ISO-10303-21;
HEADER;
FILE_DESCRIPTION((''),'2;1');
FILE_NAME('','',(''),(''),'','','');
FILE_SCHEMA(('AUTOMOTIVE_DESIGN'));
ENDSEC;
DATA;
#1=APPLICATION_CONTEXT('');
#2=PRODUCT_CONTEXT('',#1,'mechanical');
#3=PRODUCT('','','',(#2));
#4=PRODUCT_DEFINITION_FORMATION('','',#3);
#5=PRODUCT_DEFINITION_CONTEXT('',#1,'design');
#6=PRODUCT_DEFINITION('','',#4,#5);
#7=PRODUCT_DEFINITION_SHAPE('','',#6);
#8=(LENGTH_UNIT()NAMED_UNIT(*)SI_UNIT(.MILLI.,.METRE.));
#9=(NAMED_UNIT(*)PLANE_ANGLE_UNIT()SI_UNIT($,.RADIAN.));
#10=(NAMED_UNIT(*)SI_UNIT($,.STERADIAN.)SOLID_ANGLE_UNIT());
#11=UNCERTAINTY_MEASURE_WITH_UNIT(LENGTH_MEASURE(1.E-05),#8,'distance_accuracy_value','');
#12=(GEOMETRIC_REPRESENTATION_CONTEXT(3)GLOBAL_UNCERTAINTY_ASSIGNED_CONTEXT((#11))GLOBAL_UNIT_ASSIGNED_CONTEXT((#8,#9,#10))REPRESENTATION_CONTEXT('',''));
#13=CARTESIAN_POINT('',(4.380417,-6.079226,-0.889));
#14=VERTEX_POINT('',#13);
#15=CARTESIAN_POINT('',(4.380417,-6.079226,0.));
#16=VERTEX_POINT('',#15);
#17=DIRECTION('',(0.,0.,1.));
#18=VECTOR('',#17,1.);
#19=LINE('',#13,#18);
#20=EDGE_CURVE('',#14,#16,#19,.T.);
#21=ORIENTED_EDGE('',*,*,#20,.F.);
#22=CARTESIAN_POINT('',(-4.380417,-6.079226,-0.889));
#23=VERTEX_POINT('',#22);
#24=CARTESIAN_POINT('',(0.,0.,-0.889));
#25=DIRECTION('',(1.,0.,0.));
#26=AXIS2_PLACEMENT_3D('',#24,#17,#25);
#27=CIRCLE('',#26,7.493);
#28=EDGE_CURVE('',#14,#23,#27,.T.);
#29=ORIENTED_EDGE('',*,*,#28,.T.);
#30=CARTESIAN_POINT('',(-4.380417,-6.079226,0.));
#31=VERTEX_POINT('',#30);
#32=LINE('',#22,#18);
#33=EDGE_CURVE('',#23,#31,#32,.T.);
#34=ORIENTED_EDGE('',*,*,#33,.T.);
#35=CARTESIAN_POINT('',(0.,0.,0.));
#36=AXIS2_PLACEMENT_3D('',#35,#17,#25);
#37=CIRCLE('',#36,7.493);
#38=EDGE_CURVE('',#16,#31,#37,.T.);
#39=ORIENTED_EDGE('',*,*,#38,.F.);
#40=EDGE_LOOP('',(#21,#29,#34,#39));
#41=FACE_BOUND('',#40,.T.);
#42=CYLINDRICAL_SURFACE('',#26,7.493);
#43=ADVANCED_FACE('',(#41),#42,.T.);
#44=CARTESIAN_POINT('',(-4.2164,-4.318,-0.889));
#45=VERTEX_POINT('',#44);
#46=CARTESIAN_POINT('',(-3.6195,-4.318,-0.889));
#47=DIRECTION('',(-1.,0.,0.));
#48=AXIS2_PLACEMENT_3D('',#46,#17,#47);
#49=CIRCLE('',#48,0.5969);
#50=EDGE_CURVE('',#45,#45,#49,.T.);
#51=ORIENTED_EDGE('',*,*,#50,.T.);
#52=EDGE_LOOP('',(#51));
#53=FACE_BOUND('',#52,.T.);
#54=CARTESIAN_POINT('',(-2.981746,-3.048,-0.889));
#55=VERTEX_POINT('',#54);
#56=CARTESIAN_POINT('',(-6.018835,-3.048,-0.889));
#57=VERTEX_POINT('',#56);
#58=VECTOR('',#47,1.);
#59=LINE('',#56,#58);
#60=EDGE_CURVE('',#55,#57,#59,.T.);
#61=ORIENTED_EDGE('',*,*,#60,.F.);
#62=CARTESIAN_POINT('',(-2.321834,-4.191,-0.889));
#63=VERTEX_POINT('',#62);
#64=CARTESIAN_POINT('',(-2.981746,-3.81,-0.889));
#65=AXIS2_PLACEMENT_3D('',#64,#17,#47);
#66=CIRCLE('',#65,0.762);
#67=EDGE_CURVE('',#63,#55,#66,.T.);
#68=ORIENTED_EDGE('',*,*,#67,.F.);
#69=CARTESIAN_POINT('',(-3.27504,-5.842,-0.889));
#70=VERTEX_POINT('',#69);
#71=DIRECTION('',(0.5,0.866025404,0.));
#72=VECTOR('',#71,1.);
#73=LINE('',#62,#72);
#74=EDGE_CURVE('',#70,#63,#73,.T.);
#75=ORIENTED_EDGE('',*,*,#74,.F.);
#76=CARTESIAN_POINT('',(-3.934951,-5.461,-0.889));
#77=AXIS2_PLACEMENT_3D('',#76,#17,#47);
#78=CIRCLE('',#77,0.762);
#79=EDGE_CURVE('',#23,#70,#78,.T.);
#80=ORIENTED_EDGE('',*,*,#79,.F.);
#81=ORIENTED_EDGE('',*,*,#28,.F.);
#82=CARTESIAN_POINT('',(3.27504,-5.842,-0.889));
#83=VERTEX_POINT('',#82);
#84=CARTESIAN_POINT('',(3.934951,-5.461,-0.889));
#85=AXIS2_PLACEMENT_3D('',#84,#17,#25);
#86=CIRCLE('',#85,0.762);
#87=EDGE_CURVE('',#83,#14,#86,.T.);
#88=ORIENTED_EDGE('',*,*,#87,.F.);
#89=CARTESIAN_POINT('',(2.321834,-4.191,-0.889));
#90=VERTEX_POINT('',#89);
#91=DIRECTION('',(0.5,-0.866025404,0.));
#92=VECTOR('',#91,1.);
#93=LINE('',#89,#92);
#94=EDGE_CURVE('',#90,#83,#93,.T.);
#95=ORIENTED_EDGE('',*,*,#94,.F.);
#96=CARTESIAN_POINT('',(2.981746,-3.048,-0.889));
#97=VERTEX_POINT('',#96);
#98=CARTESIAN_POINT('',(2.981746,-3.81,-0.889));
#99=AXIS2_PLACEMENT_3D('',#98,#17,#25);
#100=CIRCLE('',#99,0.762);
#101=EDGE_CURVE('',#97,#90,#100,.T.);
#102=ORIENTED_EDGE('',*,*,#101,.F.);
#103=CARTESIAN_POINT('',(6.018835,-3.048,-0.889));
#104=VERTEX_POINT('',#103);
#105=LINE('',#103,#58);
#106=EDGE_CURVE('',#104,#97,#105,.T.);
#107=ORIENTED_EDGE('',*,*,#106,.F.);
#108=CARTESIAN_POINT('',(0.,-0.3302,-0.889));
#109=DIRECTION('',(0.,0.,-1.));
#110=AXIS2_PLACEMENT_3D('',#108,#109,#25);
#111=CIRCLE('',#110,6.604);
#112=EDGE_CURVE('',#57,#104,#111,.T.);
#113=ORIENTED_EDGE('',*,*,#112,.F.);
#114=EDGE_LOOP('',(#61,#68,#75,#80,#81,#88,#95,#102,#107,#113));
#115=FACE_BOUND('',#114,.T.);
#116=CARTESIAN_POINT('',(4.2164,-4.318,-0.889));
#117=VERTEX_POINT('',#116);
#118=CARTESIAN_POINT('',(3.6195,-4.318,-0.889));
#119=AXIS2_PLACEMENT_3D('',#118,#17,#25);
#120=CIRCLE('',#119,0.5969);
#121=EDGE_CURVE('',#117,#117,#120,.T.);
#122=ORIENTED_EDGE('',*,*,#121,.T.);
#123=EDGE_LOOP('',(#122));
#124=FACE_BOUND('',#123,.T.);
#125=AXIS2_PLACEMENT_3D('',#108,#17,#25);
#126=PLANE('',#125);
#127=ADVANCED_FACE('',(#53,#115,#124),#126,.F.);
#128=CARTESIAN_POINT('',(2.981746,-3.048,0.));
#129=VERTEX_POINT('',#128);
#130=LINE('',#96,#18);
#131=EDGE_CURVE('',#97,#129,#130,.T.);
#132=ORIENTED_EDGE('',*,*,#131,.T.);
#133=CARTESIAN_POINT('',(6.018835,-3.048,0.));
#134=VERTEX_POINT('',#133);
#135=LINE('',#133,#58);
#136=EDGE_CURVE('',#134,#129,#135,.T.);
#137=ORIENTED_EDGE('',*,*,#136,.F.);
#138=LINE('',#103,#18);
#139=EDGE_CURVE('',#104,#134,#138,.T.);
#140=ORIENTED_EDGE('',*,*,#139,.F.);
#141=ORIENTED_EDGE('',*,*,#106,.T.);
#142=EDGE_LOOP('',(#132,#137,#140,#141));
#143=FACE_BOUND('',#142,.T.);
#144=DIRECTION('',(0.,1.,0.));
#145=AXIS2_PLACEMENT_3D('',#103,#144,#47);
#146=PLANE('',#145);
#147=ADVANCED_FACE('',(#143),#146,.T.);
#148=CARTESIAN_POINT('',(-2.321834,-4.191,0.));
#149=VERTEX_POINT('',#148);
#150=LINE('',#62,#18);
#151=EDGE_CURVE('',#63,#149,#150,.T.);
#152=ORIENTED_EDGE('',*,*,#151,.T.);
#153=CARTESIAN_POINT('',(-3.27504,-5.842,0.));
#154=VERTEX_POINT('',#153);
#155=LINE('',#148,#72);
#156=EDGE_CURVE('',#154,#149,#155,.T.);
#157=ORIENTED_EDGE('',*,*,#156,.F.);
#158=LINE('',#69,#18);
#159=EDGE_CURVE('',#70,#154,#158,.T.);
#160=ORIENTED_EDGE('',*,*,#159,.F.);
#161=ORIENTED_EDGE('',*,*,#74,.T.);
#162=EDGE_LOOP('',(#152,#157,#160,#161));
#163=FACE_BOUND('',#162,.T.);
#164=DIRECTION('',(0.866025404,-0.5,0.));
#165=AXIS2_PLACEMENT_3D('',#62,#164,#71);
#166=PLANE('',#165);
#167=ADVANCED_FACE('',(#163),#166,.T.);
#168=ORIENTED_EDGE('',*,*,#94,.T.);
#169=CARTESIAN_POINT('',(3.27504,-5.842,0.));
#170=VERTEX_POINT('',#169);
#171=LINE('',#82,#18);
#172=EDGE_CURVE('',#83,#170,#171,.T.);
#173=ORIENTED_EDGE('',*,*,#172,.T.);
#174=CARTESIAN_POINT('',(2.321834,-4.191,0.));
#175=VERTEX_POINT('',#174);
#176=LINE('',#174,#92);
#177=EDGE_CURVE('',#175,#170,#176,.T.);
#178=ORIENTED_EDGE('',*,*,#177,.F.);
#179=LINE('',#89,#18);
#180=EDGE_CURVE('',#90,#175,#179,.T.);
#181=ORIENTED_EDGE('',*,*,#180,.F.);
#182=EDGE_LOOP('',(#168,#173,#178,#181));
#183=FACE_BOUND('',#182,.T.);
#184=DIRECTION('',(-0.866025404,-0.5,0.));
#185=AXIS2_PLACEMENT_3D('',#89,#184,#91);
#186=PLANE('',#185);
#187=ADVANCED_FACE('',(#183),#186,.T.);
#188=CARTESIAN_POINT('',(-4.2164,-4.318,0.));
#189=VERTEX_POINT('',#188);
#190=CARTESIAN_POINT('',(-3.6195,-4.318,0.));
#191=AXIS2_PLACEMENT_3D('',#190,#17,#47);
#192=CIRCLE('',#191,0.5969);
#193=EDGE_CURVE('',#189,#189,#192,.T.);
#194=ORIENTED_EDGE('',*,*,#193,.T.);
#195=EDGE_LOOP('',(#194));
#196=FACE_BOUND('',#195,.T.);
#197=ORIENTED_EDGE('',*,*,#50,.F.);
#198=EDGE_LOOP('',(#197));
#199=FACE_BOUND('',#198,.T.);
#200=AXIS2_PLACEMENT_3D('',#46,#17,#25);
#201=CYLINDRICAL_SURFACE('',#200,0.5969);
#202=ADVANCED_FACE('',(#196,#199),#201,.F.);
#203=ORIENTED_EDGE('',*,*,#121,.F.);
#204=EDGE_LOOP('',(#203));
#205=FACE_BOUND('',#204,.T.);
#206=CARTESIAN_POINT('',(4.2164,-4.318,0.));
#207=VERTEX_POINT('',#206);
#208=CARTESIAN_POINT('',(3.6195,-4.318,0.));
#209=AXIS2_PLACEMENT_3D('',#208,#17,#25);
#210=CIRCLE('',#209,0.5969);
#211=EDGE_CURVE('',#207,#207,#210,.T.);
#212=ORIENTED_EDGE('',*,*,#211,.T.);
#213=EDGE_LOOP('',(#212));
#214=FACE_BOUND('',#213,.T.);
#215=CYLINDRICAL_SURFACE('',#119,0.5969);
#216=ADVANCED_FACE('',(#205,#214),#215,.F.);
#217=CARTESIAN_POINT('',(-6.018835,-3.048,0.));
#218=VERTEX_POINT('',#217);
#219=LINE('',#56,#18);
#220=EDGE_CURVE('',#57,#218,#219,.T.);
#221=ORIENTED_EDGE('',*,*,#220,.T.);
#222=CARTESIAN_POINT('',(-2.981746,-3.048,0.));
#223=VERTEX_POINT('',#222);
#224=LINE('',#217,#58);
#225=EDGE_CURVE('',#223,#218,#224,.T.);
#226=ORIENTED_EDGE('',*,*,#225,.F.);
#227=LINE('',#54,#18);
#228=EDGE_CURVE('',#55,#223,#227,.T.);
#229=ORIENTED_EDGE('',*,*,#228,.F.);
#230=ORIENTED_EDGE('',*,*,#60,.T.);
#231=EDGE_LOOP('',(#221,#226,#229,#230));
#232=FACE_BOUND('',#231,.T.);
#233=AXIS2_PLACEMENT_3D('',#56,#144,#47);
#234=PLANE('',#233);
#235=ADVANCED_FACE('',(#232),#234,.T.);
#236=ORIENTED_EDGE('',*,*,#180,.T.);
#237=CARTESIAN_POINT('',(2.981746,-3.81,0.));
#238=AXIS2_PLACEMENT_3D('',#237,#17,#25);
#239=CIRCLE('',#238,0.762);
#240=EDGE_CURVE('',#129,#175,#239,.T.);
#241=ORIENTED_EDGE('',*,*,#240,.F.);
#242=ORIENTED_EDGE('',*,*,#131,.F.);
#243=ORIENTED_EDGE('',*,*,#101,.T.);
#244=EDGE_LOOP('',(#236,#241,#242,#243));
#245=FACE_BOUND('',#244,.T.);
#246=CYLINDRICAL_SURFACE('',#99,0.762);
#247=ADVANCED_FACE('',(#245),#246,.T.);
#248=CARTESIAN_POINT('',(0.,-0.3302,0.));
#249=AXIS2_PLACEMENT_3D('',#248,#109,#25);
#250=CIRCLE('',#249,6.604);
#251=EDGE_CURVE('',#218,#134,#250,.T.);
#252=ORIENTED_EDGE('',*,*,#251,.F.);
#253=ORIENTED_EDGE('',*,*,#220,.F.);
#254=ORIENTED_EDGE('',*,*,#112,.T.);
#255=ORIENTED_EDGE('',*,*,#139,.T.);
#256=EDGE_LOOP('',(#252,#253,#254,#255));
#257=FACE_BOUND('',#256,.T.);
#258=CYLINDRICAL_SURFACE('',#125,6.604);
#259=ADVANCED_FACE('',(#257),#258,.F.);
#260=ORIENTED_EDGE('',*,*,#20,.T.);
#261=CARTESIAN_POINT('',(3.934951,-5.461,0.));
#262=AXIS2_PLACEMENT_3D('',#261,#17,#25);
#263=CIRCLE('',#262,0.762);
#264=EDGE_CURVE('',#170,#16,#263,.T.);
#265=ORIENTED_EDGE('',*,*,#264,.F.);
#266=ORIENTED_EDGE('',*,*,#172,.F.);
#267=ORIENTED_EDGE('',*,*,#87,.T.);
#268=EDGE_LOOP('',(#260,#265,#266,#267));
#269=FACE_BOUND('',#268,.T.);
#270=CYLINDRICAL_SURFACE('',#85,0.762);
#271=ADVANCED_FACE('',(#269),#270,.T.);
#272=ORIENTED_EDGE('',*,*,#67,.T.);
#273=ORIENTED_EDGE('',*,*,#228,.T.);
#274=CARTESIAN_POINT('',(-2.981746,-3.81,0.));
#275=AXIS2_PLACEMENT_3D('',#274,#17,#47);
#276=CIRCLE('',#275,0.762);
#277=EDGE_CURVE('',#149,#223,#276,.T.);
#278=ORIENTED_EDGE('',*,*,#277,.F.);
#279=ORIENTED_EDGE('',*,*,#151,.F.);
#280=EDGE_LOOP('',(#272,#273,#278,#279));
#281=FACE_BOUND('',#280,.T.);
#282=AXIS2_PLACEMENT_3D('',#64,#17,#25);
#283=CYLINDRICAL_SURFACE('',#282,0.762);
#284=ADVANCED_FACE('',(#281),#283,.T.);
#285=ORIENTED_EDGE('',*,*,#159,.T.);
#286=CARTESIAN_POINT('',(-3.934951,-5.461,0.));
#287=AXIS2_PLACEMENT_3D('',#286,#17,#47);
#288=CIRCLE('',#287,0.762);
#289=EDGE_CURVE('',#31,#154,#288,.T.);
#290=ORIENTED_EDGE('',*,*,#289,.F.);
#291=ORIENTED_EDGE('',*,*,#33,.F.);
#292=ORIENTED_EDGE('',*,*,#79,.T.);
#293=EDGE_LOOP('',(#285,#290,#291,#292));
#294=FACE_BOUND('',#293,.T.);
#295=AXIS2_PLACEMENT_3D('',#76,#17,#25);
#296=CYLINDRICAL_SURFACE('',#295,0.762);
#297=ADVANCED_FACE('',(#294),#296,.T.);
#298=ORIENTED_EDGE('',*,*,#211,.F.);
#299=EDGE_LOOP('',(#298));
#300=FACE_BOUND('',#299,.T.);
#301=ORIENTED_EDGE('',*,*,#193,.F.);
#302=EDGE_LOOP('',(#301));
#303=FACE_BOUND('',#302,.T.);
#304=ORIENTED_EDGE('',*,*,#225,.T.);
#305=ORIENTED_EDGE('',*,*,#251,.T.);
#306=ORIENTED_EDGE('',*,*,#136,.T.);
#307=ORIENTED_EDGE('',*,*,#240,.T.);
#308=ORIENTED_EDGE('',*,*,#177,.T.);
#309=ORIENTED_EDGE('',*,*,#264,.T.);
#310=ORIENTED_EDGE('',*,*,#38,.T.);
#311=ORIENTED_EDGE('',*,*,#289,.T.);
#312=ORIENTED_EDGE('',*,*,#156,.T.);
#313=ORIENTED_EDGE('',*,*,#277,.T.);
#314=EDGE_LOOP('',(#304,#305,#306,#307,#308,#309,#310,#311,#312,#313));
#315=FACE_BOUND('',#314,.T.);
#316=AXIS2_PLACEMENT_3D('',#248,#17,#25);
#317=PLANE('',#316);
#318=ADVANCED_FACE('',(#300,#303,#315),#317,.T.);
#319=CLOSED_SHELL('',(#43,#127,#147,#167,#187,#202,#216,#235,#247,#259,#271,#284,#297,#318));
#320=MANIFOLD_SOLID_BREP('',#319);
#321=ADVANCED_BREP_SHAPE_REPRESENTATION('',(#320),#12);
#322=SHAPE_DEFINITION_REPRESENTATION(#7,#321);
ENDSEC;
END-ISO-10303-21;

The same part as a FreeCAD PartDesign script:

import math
import FreeCAD as App
import Part
import Sketcher
from FreeCAD import Vector
Q = App.Units.Quantity

doc = App.newDocument("Part")
body = doc.addObject("PartDesign::Body", "Body")

sketch1 = doc.addObject("Sketcher::SketchObject", "Sketch")
body.addObject(sketch1)
sketch1.AttachmentSupport = (doc.XY_Plane, [""])
sketch1.MapMode = "FlatFace"
sketch1.addGeometry([
    Part.LineSegment(Vector(-3.3, -5.8, 0), Vector(-2.3, -4.2, 0)),
    Part.ArcOfCircle(Part.Circle(Vector(-3, -3.8, 0), Vector(0, 0, 1), 0.8), math.radians(-30), math.radians(90)),
    Part.LineSegment(Vector(-3, -3, 0), Vector(-6, -3, 0)),
    Part.ArcOfCircle(Part.Circle(Vector(0, -0.3, 0), Vector(0, 0, 1), 6.6), math.radians(-24), math.radians(204)),
    Part.LineSegment(Vector(6, -3, 0), Vector(3, -3, 0)),
    Part.ArcOfCircle(Part.Circle(Vector(3, -3.8, 0), Vector(0, 0, 1), 0.8), math.radians(90), math.radians(210)),
    Part.LineSegment(Vector(2.3, -4.2, 0), Vector(3.3, -5.8, 0)),
    Part.ArcOfCircle(Part.Circle(Vector(3.9, -5.5, 0), Vector(0, 0, 1), 0.8), math.radians(-150), math.radians(-54)),
    Part.ArcOfCircle(Part.Circle(Vector(0, 0, 0), Vector(0, 0, 1), 7.5), math.radians(-54), math.radians(234)),
    Part.ArcOfCircle(Part.Circle(Vector(-3.9, -5.5, 0), Vector(0, 0, 1), 0.8), math.radians(-126), math.radians(-30)),
    Part.Circle(Vector(3.6, -4.3, 0), Vector(0, 0, 1), 0.6),
    Part.Circle(Vector(-3.6, -4.3, 0), Vector(0, 0, 1), 0.6),
], False)
sketch1.addConstraint([
    Sketcher.Constraint("Tangent", 0, 2, 1, 1),
    Sketcher.Constraint("Tangent", 1, 2, 2, 1),
    Sketcher.Constraint("Coincident", 2, 2, 3, 2),
    Sketcher.Constraint("Coincident", 3, 1, 4, 1),
    Sketcher.Constraint("Tangent", 4, 2, 5, 1),
    Sketcher.Constraint("Tangent", 5, 2, 6, 1),
    Sketcher.Constraint("Tangent", 6, 2, 7, 1),
    Sketcher.Constraint("Tangent", 7, 2, 8, 1),
    Sketcher.Constraint("Tangent", 8, 2, 9, 1),
    Sketcher.Constraint("Tangent", 9, 2, 0, 1),
    Sketcher.Constraint("Horizontal", 2),
    Sketcher.Constraint("Horizontal", 4),
    Sketcher.Constraint("Coincident", 8, 3, -1, 1),
    Sketcher.Constraint("Equal", 1, 5),
    Sketcher.Constraint("Equal", 5, 7),
    Sketcher.Constraint("Equal", 7, 9),
    Sketcher.Constraint("Equal", 10, 11),
    Sketcher.Constraint("Symmetric", 1, 3, 5, 3, -2),
    Sketcher.Constraint("Symmetric", 10, 3, 11, 3, -2),
    Sketcher.Constraint("PointOnObject", 3, 3, -2),
    Sketcher.Constraint("Horizontal", 7, 3, 9, 3),
    Sketcher.Constraint("Radius", 1, Q("0.03 in")),
    Sketcher.Constraint("Radius", 3, Q("0.26 in")),
    Sketcher.Constraint("Diameter", 10, Q("0.047 in")),
    Sketcher.Constraint("Angle", 0, Q("60 deg")),
    Sketcher.Constraint("Radius", 8, Q("0.295 in")),
    Sketcher.Constraint("DistanceY", 1, 3, -1, 1, Q("0.15 in")),
    Sketcher.Constraint("DistanceY", 10, 3, -1, 1, Q("0.17 in")),
    Sketcher.Constraint("DistanceY", 6, 2, -1, 1, Q("0.23 in")),
    Sketcher.Constraint("DistanceY", 3, 3, -1, 1, Q("0.013 in")),
    Sketcher.Constraint("DistanceX", -1, 1, 10, 3, Q("0.1425 in")),
])
pad1 = doc.addObject("PartDesign::Pad", "Pad")
body.addObject(pad1)
pad1.Profile = sketch1
pad1.Length = Q("0.035 in")
pad1.Reversed = True

doc.recompute()
